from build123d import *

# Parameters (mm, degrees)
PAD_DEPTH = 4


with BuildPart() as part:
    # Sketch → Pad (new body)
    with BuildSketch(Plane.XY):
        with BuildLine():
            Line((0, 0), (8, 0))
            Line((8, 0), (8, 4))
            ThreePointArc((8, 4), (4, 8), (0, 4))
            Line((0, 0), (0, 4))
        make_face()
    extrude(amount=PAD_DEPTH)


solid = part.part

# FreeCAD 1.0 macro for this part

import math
import FreeCAD as App
import Part
import Sketcher

V = App.Vector
Q = App.Units.Quantity

doc = App.newDocument("Part")
body = doc.addObject("PartDesign::Body", "Body")

sketch1 = body.newObject("Sketcher::SketchObject", "Sketch")
sketch1.AttachmentSupport = (doc.getObject("XY_Plane"), [""])
sketch1.MapMode = "FlatFace"
sketch1.addGeometry([
    Part.LineSegment(V(0, 0, 0), V(8, 0, 0)),
    Part.LineSegment(V(8, 0, 0), V(8, 4, 0)),
    Part.ArcOfCircle(Part.Circle(V(4, 4, 0), V(0, 0, 1), 4), math.radians(0), math.radians(180)),
    Part.LineSegment(V(0, 4, 0), V(0, 0, 0)),
], False)
sketch1.addConstraint([
    Sketcher.Constraint("Coincident", 0, 2, 1, 1),
    Sketcher.Constraint("Tangent", 1, 2, 2, 1),
    Sketcher.Constraint("Tangent", 2, 2, 3, 1),
    Sketcher.Constraint("Coincident", 3, 2, 0, 1),
    Sketcher.Constraint("Horizontal", 0),
    Sketcher.Constraint("Vertical", 1),
    Sketcher.Constraint("Vertical", 3),
    Sketcher.Constraint("Coincident", 3, 2, -1, 1),
    Sketcher.Constraint("Radius", 2, Q("4 mm")),
    Sketcher.Constraint("DistanceY", 1, 1, 1, 2, Q("4 mm")),
])
pad1 = body.newObject("PartDesign::Pad", "Pad")
pad1.Profile = sketch1
pad1.Length = 4

doc.recompute()
